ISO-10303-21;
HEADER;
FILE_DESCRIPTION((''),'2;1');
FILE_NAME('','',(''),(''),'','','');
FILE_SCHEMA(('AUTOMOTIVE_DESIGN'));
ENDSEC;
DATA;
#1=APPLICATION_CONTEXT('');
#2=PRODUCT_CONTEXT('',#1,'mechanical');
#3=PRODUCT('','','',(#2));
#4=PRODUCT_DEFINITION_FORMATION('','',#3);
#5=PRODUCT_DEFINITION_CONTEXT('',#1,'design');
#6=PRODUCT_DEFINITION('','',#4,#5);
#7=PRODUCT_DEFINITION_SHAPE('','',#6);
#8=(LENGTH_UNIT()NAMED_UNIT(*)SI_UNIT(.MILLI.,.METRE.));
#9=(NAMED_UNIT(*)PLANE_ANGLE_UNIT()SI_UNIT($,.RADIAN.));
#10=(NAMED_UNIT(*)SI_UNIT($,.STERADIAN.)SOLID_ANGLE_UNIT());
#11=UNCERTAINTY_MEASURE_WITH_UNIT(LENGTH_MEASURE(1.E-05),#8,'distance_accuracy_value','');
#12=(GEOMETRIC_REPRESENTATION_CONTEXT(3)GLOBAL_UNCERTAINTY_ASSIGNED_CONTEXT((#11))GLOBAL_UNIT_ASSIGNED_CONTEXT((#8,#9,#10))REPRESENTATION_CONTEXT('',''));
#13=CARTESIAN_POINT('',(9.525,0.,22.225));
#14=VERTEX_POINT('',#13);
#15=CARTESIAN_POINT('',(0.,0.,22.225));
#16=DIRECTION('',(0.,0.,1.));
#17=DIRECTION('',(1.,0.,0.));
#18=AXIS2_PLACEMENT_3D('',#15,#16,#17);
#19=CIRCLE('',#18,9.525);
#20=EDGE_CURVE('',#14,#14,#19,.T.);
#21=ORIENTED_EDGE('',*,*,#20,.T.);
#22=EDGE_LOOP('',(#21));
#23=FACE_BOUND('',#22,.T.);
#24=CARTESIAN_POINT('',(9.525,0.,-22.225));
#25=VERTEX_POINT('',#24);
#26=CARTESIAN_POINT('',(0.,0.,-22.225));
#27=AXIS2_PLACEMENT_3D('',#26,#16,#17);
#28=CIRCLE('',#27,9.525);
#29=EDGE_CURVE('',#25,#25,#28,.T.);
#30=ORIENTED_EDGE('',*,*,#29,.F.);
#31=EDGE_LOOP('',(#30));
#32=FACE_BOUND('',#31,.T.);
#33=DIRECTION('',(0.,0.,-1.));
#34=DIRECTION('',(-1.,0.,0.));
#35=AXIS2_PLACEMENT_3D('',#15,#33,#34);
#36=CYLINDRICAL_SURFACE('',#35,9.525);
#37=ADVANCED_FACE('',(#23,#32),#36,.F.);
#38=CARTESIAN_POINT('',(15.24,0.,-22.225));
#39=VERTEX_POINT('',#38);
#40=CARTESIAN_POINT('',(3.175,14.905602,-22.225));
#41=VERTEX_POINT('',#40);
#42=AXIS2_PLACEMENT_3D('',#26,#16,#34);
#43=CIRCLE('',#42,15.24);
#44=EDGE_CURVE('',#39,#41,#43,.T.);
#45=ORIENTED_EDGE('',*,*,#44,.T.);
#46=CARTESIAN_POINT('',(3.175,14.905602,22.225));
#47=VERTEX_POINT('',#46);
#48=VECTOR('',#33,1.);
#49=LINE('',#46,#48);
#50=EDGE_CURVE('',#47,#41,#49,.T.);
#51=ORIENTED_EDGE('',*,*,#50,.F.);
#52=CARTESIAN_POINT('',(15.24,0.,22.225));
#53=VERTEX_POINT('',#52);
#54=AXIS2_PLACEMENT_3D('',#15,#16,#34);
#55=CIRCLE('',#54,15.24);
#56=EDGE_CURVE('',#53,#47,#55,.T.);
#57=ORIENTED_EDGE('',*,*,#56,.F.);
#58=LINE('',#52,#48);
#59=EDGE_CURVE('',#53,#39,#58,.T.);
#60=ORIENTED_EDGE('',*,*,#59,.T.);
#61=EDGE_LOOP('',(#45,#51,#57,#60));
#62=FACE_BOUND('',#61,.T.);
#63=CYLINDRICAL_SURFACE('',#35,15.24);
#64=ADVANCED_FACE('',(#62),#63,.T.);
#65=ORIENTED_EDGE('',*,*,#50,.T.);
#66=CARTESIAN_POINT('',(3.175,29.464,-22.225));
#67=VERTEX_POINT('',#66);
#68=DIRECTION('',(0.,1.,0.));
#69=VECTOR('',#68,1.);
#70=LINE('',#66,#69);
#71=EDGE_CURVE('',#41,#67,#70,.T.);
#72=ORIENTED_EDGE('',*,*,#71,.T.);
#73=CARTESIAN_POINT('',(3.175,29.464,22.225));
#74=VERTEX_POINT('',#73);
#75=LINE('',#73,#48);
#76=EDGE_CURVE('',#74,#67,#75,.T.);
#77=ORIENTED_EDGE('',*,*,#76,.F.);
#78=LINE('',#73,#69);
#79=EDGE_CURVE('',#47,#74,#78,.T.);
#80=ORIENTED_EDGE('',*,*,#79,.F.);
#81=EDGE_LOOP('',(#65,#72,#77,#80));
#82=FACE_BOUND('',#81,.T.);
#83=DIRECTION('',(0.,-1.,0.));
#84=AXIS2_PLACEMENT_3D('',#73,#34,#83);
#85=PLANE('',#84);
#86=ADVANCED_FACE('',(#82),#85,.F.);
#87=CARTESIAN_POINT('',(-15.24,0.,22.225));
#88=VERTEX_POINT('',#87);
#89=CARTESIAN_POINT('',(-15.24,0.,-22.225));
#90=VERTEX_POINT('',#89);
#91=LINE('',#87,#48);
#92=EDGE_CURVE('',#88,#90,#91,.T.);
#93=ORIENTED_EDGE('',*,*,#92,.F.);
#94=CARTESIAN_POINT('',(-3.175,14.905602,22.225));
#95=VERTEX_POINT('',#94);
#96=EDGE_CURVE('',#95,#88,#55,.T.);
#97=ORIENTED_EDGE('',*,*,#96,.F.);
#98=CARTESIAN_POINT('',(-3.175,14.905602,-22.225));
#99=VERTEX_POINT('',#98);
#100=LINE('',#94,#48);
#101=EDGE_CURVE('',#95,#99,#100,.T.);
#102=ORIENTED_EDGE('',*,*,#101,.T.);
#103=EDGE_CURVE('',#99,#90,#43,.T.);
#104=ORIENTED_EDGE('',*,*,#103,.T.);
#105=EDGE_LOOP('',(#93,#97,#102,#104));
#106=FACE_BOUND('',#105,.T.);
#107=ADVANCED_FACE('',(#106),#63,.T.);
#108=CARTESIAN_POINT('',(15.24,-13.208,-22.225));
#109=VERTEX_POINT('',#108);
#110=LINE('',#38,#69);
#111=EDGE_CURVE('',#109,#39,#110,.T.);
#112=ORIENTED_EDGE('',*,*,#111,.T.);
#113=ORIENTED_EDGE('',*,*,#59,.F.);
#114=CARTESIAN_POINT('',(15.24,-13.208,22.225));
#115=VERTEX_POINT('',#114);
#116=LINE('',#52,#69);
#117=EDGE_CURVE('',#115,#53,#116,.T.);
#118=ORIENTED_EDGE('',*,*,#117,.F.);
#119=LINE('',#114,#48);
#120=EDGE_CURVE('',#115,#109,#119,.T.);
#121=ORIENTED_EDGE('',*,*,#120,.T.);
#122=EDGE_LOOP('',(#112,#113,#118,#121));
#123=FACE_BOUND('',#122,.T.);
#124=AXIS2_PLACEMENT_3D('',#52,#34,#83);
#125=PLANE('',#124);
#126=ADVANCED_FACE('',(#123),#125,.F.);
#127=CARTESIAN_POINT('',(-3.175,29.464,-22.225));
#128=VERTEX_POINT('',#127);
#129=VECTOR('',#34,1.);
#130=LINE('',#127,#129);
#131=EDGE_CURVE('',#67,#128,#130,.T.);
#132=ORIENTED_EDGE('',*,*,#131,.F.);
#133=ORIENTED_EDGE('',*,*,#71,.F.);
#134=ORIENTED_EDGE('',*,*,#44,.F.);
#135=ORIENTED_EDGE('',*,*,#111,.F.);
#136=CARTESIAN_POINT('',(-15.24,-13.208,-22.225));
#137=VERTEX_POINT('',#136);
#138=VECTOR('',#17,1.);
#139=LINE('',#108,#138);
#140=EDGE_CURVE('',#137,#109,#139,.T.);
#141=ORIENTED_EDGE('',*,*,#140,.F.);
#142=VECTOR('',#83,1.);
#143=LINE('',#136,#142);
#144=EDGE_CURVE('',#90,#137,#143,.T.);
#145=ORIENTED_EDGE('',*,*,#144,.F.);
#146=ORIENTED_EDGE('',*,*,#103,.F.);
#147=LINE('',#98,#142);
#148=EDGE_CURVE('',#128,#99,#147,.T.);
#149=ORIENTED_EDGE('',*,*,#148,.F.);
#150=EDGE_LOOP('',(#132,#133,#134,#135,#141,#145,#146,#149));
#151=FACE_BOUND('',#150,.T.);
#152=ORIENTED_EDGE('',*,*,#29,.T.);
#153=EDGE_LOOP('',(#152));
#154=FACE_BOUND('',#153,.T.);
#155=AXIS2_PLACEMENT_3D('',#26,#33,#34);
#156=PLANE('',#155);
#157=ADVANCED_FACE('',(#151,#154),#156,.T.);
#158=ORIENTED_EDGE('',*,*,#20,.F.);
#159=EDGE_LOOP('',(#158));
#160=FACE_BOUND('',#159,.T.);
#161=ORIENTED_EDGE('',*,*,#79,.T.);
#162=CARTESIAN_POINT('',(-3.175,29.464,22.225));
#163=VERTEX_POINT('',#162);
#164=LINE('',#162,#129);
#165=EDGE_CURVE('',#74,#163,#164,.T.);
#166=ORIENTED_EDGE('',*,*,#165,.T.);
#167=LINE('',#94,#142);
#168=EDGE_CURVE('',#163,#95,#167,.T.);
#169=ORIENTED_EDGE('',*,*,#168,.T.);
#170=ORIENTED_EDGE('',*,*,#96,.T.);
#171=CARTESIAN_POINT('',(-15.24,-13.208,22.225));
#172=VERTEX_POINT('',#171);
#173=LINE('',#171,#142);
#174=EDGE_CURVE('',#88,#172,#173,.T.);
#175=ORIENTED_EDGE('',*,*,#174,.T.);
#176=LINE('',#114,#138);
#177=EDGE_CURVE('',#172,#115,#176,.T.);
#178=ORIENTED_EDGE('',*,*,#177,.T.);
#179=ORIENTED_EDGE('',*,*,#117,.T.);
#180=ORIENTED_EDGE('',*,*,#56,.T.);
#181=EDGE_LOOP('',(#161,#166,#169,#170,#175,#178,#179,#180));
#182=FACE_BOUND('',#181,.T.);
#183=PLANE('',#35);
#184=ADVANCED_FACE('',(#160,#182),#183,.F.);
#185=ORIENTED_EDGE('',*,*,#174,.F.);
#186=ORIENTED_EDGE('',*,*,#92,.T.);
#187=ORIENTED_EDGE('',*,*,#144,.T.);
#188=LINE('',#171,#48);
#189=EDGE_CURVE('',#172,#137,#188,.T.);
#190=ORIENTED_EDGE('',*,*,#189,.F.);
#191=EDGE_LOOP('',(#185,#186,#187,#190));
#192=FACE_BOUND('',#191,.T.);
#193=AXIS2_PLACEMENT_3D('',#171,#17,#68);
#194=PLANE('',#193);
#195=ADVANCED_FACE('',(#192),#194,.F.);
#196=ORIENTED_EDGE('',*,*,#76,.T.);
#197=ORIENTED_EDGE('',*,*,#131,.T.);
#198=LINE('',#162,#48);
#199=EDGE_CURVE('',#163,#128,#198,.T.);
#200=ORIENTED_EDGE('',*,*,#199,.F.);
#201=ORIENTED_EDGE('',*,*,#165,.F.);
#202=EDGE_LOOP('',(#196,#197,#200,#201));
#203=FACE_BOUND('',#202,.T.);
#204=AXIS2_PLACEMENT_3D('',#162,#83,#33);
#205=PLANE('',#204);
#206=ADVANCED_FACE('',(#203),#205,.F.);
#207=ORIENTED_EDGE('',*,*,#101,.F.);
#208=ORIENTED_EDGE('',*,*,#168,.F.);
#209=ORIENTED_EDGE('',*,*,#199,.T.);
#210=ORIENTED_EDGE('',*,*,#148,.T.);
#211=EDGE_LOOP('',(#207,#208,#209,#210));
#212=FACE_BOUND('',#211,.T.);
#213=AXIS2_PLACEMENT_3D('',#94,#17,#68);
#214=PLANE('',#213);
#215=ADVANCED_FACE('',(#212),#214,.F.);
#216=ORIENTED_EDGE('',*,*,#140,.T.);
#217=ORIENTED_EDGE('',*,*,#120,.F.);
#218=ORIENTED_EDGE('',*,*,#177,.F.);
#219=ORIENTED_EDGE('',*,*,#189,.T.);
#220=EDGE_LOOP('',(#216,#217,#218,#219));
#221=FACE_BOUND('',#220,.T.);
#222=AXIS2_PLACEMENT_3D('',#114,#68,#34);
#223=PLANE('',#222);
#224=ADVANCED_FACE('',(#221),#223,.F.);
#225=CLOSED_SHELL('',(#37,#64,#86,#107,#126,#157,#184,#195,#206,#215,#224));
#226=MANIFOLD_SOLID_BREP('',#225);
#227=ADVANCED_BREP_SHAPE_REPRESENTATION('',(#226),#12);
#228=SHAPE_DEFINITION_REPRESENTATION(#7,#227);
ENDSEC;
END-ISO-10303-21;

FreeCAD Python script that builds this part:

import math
import FreeCAD as App
import Part
import Sketcher
from FreeCAD import Vector
Q = App.Units.Quantity

doc = App.newDocument("Part")
body = doc.addObject("PartDesign::Body", "Body")

sketch1 = body.newObject("Sketcher::SketchObject", "Sketch")
sketch1.AttachmentSupport = (doc.getObject("XY_Plane"), [""])
sketch1.MapMode = "FlatFace"
sketch1.addGeometry([
    Part.LineSegment(Vector(-15.24, -13.208, 0), Vector(15.24, -13.208, 0)),
    Part.LineSegment(Vector(15.24, -13.208, 0), Vector(15.24, 0, 0)),
    Part.ArcOfCircle(Part.Circle(Vector(0, 0, 0), Vector(0, 0, 1), 15.24), math.radians(0), math.radians(77.975301)),
    Part.LineSegment(Vector(3.175, 14.905602, 0), Vector(3.175, 29.464, 0)),
    Part.LineSegment(Vector(3.175, 29.464, 0), Vector(-3.175, 29.464, 0)),
    Part.LineSegment(Vector(-3.175, 29.464, 0), Vector(-3.175, 14.905602, 0)),
    Part.ArcOfCircle(Part.Circle(Vector(0, 0, 0), Vector(0, 0, 1), 15.24), math.radians(102.024699), math.radians(180)),
    Part.LineSegment(Vector(-15.24, 0, 0), Vector(-15.24, -13.208, 0)),
    Part.Circle(Vector(0, 0, 0), Vector(0, 0, 1), 9.525),
], False)
sketch1.addConstraint([
    Sketcher.Constraint("Coincident", 0, 2, 1, 1),
    Sketcher.Constraint("Tangent", 1, 2, 2, 1),
    Sketcher.Constraint("Coincident", 2, 2, 3, 1),
    Sketcher.Constraint("Coincident", 3, 2, 4, 1),
    Sketcher.Constraint("Coincident", 4, 2, 5, 1),
    Sketcher.Constraint("Coincident", 5, 2, 6, 1),
    Sketcher.Constraint("Tangent", 6, 2, 7, 1),
    Sketcher.Constraint("Coincident", 7, 2, 0, 1),
    Sketcher.Constraint("Horizontal", 0),
    Sketcher.Constraint("Vertical", 1),
    Sketcher.Constraint("Vertical", 3),
    Sketcher.Constraint("Horizontal", 4),
    Sketcher.Constraint("Vertical", 5),
    Sketcher.Constraint("Vertical", 7),
    Sketcher.Constraint("Coincident", 2, 3, -1, 1),
    Sketcher.Constraint("Coincident", 6, 3, -1, 1),
    Sketcher.Constraint("Coincident", 8, 3, -1, 1),
    Sketcher.Constraint("Equal", 2, 6),
    Sketcher.Constraint("Horizontal", 2, 2, 5, 2),
    Sketcher.Constraint("Radius", 2, Q("0.6 in")),
    Sketcher.Constraint("Diameter", 8, Q("0.75 in")),
    Sketcher.Constraint("DistanceX", 4, 2, 4, 1, Q("0.25 in")),
    Sketcher.Constraint("DistanceY", 1, 1, 1, 2, Q("0.52 in")),
    Sketcher.Constraint("DistanceY", -1, 1, 3, 2, Q("1.16 in")),
])
pad1 = body.newObject("PartDesign::Pad", "Pad")
pad1.Profile = sketch1
pad1.Length = Q("1.75 in")
pad1.Midplane = True

doc.recompute()
